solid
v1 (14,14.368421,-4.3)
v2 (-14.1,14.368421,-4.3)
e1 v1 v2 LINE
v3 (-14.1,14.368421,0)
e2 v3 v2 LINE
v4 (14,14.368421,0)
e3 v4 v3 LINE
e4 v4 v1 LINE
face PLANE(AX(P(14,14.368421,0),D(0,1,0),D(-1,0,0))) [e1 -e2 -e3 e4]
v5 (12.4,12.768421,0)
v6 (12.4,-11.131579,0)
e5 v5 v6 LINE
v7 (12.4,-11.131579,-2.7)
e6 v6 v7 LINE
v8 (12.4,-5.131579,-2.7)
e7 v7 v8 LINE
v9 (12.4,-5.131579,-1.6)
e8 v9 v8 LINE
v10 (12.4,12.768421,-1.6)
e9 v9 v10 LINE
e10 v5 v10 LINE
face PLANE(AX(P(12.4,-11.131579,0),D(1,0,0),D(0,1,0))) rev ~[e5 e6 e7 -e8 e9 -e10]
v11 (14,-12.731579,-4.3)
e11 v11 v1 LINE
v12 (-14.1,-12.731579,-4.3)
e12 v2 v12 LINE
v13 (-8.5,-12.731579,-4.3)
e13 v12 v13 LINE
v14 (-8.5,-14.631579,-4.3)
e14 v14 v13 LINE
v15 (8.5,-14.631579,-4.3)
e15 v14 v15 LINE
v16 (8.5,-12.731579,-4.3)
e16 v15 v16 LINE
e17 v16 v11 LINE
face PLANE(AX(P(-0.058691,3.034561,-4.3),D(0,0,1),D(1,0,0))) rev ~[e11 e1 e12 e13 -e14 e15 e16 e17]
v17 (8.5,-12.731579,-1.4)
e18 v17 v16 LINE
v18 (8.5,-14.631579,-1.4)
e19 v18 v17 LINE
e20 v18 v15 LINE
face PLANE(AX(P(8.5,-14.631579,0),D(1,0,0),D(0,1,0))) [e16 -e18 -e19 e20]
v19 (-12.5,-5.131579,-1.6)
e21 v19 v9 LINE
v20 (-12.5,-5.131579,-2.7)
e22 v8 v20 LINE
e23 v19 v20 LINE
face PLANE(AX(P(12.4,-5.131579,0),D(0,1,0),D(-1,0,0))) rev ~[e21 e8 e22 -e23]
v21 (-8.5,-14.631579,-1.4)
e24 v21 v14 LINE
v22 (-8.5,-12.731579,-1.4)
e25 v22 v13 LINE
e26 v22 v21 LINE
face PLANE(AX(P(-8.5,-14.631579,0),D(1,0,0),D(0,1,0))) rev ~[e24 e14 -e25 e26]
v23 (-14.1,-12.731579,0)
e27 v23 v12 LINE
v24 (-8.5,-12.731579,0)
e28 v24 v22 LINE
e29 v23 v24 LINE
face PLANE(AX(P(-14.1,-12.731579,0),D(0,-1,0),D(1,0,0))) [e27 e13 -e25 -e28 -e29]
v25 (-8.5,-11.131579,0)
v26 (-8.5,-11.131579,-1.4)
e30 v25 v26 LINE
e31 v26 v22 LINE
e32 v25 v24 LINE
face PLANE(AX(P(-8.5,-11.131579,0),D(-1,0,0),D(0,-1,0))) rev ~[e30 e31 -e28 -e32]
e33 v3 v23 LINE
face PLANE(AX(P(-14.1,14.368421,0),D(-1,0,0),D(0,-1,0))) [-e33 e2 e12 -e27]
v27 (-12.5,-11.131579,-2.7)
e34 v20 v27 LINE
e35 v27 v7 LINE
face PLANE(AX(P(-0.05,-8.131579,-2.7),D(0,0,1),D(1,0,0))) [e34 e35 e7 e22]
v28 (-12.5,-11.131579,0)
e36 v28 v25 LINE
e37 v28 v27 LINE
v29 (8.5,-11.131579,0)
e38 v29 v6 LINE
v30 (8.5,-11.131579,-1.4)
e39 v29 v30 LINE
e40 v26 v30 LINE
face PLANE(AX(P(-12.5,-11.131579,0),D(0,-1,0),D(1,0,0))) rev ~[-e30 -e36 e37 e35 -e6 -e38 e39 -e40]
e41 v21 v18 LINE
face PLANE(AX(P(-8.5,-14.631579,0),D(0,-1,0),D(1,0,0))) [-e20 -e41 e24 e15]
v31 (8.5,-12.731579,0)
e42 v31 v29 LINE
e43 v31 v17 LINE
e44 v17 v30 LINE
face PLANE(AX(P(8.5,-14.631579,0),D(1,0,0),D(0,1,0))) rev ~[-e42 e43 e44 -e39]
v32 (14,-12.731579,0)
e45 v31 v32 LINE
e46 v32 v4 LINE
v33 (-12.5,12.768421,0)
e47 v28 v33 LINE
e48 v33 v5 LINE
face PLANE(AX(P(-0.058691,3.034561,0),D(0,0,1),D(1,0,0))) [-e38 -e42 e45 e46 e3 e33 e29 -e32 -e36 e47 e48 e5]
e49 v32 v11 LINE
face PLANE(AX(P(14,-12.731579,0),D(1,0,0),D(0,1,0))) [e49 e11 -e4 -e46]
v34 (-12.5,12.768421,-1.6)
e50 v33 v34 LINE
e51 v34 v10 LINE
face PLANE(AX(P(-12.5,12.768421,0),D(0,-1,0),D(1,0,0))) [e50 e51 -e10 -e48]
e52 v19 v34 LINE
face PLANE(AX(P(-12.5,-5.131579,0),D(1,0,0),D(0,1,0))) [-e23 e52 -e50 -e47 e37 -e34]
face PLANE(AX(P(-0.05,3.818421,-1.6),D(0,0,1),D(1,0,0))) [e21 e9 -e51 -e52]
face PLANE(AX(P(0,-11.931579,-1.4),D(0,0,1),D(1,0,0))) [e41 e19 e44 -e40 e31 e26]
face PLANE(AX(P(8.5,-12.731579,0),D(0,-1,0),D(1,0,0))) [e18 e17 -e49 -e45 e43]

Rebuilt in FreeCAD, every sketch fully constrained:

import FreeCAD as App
import Part
import Sketcher

V = App.Vector

doc = App.newDocument("Part")
body = doc.addObject("PartDesign::Body", "Body")

# Sketch on XY plane
sketch1 = doc.addObject("Sketcher::SketchObject", "Sketch")
body.addObject(sketch1)
sketch1.AttachmentSupport = (doc.XY_Plane, [""])
sketch1.MapMode = "FlatFace"
sketch1.addGeometry(Part.LineSegment(V(14, -12.7, 0), V(14, 14.4, 0)), False)
sketch1.addGeometry(Part.LineSegment(V(14, 14.4, 0), V(-14.1, 14.4, 0)), False)
sketch1.addGeometry(Part.LineSegment(V(-14.1, 14.4, 0), V(-14.1, -12.7, 0)), False)
sketch1.addGeometry(Part.LineSegment(V(-14.1, -12.7, 0), V(-8.5, -12.7, 0)), False)
sketch1.addGeometry(Part.LineSegment(V(-8.5, -12.7, 0), V(-8.5, -14.6, 0)), False)
sketch1.addGeometry(Part.LineSegment(V(-8.5, -14.6, 0), V(8.5, -14.6, 0)), False)
sketch1.addGeometry(Part.LineSegment(V(8.5, -14.6, 0), V(8.5, -12.7, 0)), False)
sketch1.addGeometry(Part.LineSegment(V(8.5, -12.7, 0), V(14, -12.7, 0)), False)
sketch1.addConstraint(Sketcher.Constraint("Coincident", 0, 2, 1, 1))
sketch1.addConstraint(Sketcher.Constraint("Coincident", 1, 2, 2, 1))
sketch1.addConstraint(Sketcher.Constraint("Coincident", 2, 2, 3, 1))
sketch1.addConstraint(Sketcher.Constraint("Coincident", 3, 2, 4, 1))
sketch1.addConstraint(Sketcher.Constraint("Coincident", 4, 2, 5, 1))
sketch1.addConstraint(Sketcher.Constraint("Coincident", 5, 2, 6, 1))
sketch1.addConstraint(Sketcher.Constraint("Coincident", 6, 2, 7, 1))
sketch1.addConstraint(Sketcher.Constraint("Coincident", 7, 2, 0, 1))
sketch1.addConstraint(Sketcher.Constraint("Vertical", 0))
sketch1.addConstraint(Sketcher.Constraint("Horizontal", 1))
sketch1.addConstraint(Sketcher.Constraint("Vertical", 2))
sketch1.addConstraint(Sketcher.Constraint("Horizontal", 3))
sketch1.addConstraint(Sketcher.Constraint("Vertical", 4))
sketch1.addConstraint(Sketcher.Constraint("Horizontal", 5))
sketch1.addConstraint(Sketcher.Constraint("Vertical", 6))
sketch1.addConstraint(Sketcher.Constraint("Horizontal", 7))
sketch1.addConstraint(Sketcher.Constraint("Symmetric", 3, 2, 6, 2, -2))
sketch1.addConstraint(Sketcher.Constraint("DistanceX", 5, 1, 5, 2, 17.0))
sketch1.addConstraint(Sketcher.Constraint("DistanceX", 1, 2, 1, 1, 28.1))
sketch1.addConstraint(Sketcher.Constraint("DistanceX", 3, 1, 3, 2, 5.6))
sketch1.addConstraint(Sketcher.Constraint("DistanceY", 0, 1, 0, 2, 27.1))
sketch1.addConstraint(Sketcher.Constraint("DistanceY", 4, 2, 4, 1, 1.9))
sketch1.addConstraint(Sketcher.Constraint("DistanceY", -1, 1, 0, 2, 14.368421))
pad1 = doc.addObject("PartDesign::Pad", "Pad")
body.addObject(pad1)
pad1.Profile = sketch1
pad1.Length = 4.3
pad1.Reversed = True

# Sketch on XY plane
sketch2 = doc.addObject("Sketcher::SketchObject", "Sketch001")
body.addObject(sketch2)
sketch2.AttachmentSupport = (doc.XY_Plane, [""])
sketch2.MapMode = "FlatFace"
sketch2.addGeometry(Part.LineSegment(V(12, -11, 0), V(12, -5, 0)), False)
sketch2.addGeometry(Part.LineSegment(V(12, -5, 0), V(-12, -5, 0)), False)
sketch2.addGeometry(Part.LineSegment(V(-12, -5, 0), V(-12, -11, 0)), False)
sketch2.addGeometry(Part.LineSegment(V(-12, -11, 0), V(12, -11, 0)), False)
sketch2.addConstraint(Sketcher.Constraint("Coincident", 0, 2, 1, 1))
sketch2.addConstraint(Sketcher.Constraint("Coincident", 1, 2, 2, 1))
sketch2.addConstraint(Sketcher.Constraint("Coincident", 2, 2, 3, 1))
sketch2.addConstraint(Sketcher.Constraint("Coincident", 3, 2, 0, 1))
sketch2.addConstraint(Sketcher.Constraint("Vertical", 0))
sketch2.addConstraint(Sketcher.Constraint("Horizontal", 1))
sketch2.addConstraint(Sketcher.Constraint("Vertical", 2))
sketch2.addConstraint(Sketcher.Constraint("Horizontal", 3))
sketch2.addConstraint(Sketcher.Constraint("DistanceY", 0, 1, 0, 2, 6.0))
sketch2.addConstraint(Sketcher.Constraint("DistanceX", 1, 2, 1, 1, 24.9))
sketch2.addConstraint(Sketcher.Constraint("DistanceX", -1, 1, 0, 2, 12.4))
sketch2.addConstraint(Sketcher.Constraint("DistanceY", 0, 2, -1, 1, 5.131579))
pocket1 = doc.addObject("PartDesign::Pocket", "Pocket")
body.addObject(pocket1)
pocket1.Profile = sketch2
pocket1.Length = 2.7

# Sketch on XY plane
sketch3 = doc.addObject("Sketcher::SketchObject", "Sketch002")
body.addObject(sketch3)
sketch3.AttachmentSupport = (doc.XY_Plane, [""])
sketch3.MapMode = "FlatFace"
sketch3.addGeometry(Part.LineSegment(V(-12, 13, 0), V(-12, -5, 0)), False)
sketch3.addGeometry(Part.LineSegment(V(-12, -5, 0), V(12, -5, 0)), False)
sketch3.addGeometry(Part.LineSegment(V(12, -5, 0), V(12, 13, 0)), False)
sketch3.addGeometry(Part.LineSegment(V(12, 13, 0), V(-12, 13, 0)), False)
sketch3.addConstraint(Sketcher.Constraint("Coincident", 0, 2, 1, 1))
sketch3.addConstraint(Sketcher.Constraint("Coincident", 1, 2, 2, 1))
sketch3.addConstraint(Sketcher.Constraint("Coincident", 2, 2, 3, 1))
sketch3.addConstraint(Sketcher.Constraint("Coincident", 3, 2, 0, 1))
sketch3.addConstraint(Sketcher.Constraint("Vertical", 0))
sketch3.addConstraint(Sketcher.Constraint("Horizontal", 1))
sketch3.addConstraint(Sketcher.Constraint("Vertical", 2))
sketch3.addConstraint(Sketcher.Constraint("Horizontal", 3))
sketch3.addConstraint(Sketcher.Constraint("DistanceX", 1, 1, 1, 2, 24.9))
sketch3.addConstraint(Sketcher.Constraint("DistanceY", 0, 2, 0, 1, 17.9))
sketch3.addConstraint(Sketcher.Constraint("DistanceX", 0, 2, -1, 1, 12.5))
sketch3.addConstraint(Sketcher.Constraint("DistanceY", 0, 2, -1, 1, 5.131579))
pocket2 = doc.addObject("PartDesign::Pocket", "Pocket001")
body.addObject(pocket2)
pocket2.Profile = sketch3
pocket2.Length = 1.6

# Sketch on XY plane
sketch4 = doc.addObject("Sketcher::SketchObject", "Sketch003")
body.addObject(sketch4)
sketch4.AttachmentSupport = (doc.XY_Plane, [""])
sketch4.MapMode = "FlatFace"
sketch4.addGeometry(Part.LineSegment(V(-8.5, -11.1, 0), V(-8.5, -14.6, 0)), False)
sketch4.addGeometry(Part.LineSegment(V(-8.5, -14.6, 0), V(8.5, -14.6, 0)), False)
sketch4.addGeometry(Part.LineSegment(V(8.5, -14.6, 0), V(8.5, -11.1, 0)), False)
sketch4.addGeometry(Part.LineSegment(V(8.5, -11.1, 0), V(-8.5, -11.1, 0)), False)
sketch4.addConstraint(Sketcher.Constraint("Coincident", 0, 2, 1, 1))
sketch4.addConstraint(Sketcher.Constraint("Coincident", 1, 2, 2, 1))
sketch4.addConstraint(Sketcher.Constraint("Coincident", 2, 2, 3, 1))
sketch4.addConstraint(Sketcher.Constraint("Coincident", 3, 2, 0, 1))
sketch4.addConstraint(Sketcher.Constraint("Vertical", 0))
sketch4.addConstraint(Sketcher.Constraint("Horizontal", 1))
sketch4.addConstraint(Sketcher.Constraint("Vertical", 2))
sketch4.addConstraint(Sketcher.Constraint("Horizontal", 3))
sketch4.addConstraint(Sketcher.Constraint("DistanceX", 1, 1, 1, 2, 17.0))
sketch4.addConstraint(Sketcher.Constraint("DistanceY", 0, 2, 0, 1, 3.5))
sketch4.addConstraint(Sketcher.Constraint("DistanceX", 0, 2, -1, 1, 8.5))
sketch4.addConstraint(Sketcher.Constraint("DistanceY", 0, 2, -1, 1, 14.631579))
pocket3 = doc.addObject("PartDesign::Pocket", "Pocket002")
body.addObject(pocket3)
pocket3.Profile = sketch4
pocket3.Length = 1.4

doc.recompute()
